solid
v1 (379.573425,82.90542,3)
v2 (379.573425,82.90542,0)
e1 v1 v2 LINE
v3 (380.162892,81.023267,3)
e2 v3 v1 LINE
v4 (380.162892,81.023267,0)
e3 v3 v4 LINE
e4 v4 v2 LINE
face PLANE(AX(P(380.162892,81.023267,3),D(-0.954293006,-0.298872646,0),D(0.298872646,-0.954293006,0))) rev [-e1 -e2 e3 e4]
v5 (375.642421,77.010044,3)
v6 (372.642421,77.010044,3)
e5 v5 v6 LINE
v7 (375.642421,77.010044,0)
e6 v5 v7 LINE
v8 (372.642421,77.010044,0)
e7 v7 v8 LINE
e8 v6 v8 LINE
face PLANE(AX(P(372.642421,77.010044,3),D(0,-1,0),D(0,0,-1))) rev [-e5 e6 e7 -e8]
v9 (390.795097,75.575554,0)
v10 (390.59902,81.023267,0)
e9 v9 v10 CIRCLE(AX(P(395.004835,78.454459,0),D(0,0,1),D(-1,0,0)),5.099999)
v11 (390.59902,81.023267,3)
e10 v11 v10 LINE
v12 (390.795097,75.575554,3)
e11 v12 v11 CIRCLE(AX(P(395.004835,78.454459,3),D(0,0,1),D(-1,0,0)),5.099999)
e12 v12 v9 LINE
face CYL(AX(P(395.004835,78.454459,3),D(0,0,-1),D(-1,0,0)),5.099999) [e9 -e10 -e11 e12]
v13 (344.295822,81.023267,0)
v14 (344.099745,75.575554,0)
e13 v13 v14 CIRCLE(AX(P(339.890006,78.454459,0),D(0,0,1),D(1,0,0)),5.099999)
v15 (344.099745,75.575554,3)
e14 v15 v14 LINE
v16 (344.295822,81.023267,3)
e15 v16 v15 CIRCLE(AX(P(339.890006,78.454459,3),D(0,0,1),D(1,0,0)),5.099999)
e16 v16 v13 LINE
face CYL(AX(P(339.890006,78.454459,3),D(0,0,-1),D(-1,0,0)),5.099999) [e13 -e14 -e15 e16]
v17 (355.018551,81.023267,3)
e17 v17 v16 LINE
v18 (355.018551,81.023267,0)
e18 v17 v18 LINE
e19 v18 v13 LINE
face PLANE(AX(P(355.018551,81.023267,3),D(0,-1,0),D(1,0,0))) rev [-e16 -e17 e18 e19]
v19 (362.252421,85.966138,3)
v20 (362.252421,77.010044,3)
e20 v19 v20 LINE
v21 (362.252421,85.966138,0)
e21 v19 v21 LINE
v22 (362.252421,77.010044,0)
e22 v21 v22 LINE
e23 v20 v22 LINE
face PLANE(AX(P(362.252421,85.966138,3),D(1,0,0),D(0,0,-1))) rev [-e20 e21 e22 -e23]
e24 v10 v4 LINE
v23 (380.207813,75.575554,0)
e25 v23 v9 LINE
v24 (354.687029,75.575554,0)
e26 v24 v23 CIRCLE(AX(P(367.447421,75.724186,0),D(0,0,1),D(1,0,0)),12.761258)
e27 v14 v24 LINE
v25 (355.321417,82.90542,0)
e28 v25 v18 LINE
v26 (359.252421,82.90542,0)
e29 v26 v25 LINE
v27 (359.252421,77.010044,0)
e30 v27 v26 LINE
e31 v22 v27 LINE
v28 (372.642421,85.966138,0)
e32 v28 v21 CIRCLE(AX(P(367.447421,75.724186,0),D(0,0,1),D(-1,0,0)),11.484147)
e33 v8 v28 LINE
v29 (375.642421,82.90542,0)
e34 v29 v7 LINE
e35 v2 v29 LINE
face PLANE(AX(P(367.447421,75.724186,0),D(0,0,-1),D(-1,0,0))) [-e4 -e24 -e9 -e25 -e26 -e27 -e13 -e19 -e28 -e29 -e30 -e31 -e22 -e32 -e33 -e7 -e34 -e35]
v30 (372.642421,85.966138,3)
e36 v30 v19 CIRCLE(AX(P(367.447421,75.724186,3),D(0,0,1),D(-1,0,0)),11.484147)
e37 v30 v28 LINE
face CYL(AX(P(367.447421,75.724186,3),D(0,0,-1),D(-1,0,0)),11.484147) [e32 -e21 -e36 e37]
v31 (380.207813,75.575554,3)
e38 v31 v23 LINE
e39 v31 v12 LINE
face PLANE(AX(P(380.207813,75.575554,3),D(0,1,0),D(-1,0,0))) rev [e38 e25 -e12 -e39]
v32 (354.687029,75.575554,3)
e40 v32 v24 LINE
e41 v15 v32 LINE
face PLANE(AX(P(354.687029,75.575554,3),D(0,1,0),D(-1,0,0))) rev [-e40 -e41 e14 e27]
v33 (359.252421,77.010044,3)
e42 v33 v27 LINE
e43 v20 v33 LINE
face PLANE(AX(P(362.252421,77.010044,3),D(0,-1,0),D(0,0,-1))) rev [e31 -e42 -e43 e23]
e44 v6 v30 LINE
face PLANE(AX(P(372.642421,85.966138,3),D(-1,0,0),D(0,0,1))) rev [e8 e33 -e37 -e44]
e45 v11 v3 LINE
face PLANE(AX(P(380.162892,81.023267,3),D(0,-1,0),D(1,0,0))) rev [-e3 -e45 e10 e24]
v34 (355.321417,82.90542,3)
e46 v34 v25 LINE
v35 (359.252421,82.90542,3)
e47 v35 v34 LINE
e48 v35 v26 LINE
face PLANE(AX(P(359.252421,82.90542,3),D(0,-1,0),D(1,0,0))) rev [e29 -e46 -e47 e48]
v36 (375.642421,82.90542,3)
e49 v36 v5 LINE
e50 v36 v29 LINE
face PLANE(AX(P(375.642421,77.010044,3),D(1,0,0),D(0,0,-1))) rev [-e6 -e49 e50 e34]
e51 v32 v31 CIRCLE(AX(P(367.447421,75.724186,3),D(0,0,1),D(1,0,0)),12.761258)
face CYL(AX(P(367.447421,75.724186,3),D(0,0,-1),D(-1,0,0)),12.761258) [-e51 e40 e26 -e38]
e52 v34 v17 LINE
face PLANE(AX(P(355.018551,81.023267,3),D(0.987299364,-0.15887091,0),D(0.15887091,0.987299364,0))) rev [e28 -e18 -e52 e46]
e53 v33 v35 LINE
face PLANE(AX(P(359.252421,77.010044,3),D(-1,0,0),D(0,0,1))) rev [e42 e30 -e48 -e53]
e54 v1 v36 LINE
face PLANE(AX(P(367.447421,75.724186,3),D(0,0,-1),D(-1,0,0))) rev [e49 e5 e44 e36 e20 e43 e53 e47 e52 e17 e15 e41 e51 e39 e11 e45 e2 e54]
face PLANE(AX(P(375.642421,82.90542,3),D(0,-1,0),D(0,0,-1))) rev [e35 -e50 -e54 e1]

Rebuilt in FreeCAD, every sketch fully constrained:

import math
import FreeCAD as App
import Part
import Sketcher
Q = App.Units.Quantity

doc = App.newDocument("Part")
params = doc.addObject("Spreadsheet::Sheet", "Params")
for row, (alias, value) in enumerate([
    ("sketch1_radius", "5.099999 mm"),
    ("sketch1_width", "3 mm"),
    ("pad1_length", "3 mm"),
], start=1):
    params.set(f"A{row}", alias)
    params.set(f"B{row}", "=" + value)
    params.setAlias(f"B{row}", alias)

body = doc.addObject("PartDesign::Body", "Body")

# Sketch on XY plane
sketch1 = doc.addObject("Sketcher::SketchObject", "Sketch")
body.addObject(sketch1)
sketch1.AttachmentSupport = (doc.XY_Plane, [""])
sketch1.MapMode = "FlatFace"
sketch1.addGeometry([
    Part.LineSegment(App.Vector(390.59902, 81.023267, 0), App.Vector(380.162892, 81.023267, 0)),  # 0
    Part.LineSegment(App.Vector(380.162892, 81.023267, 0), App.Vector(379.573425, 82.90542, 0)),  # 1
    Part.LineSegment(App.Vector(379.573425, 82.90542, 0), App.Vector(375.642421, 82.90542, 0)),  # 2
    Part.LineSegment(App.Vector(375.642421, 82.90542, 0), App.Vector(375.642421, 77.010044, 0)),  # 3
    Part.LineSegment(App.Vector(375.642421, 77.010044, 0), App.Vector(372.642421, 77.010044, 0)),  # 4
    Part.LineSegment(App.Vector(372.642421, 77.010044, 0), App.Vector(372.642421, 85.966138, 0)),  # 5
    Part.ArcOfCircle(Part.Circle(App.Vector(367.447421, 75.724186, 0), App.Vector(0, 0, 1), 11.484147), math.radians(63.104624), math.radians(116.895376)),  # 6
    Part.LineSegment(App.Vector(362.252421, 85.966138, 0), App.Vector(362.252421, 77.010044, 0)),  # 7
    Part.LineSegment(App.Vector(362.252421, 77.010044, 0), App.Vector(359.252421, 77.010044, 0)),  # 8
    Part.LineSegment(App.Vector(359.252421, 77.010044, 0), App.Vector(359.252421, 82.90542, 0)),  # 9
    Part.LineSegment(App.Vector(359.252421, 82.90542, 0), App.Vector(355.321417, 82.90542, 0)),  # 10
    Part.LineSegment(App.Vector(355.321417, 82.90542, 0), App.Vector(355.018551, 81.023267, 0)),  # 11
    Part.LineSegment(App.Vector(355.018551, 81.023267, 0), App.Vector(344.295822, 81.023267, 0)),  # 12
    Part.ArcOfCircle(Part.Circle(App.Vector(339.890006, 78.454459, 0), App.Vector(0, 0, 1), 5.099999), math.radians(30.244306), math.radians(325.633036)),  # 13
    Part.LineSegment(App.Vector(344.099745, 75.575554, 0), App.Vector(354.687029, 75.575554, 0)),  # 14
    Part.ArcOfCircle(Part.Circle(App.Vector(367.447421, 75.724186, 0), App.Vector(0, 0, 1), 12.761258), math.radians(-179.332656), math.radians(-0.667344)),  # 15
    Part.LineSegment(App.Vector(380.207813, 75.575554, 0), App.Vector(390.795097, 75.575554, 0)),  # 16
    Part.ArcOfCircle(Part.Circle(App.Vector(395.004835, 78.454459, 0), App.Vector(0, 0, 1), 5.099999), math.radians(-145.633036), math.radians(149.755694)),  # 17
], False)
sketch1.addConstraint([
    Sketcher.Constraint("Coincident", 0, 2, 1, 1),
    Sketcher.Constraint("Coincident", 1, 2, 2, 1),
    Sketcher.Constraint("Coincident", 2, 2, 3, 1),
    Sketcher.Constraint("Coincident", 3, 2, 4, 1),
    Sketcher.Constraint("Coincident", 4, 2, 5, 1),
    Sketcher.Constraint("Coincident", 5, 2, 6, 1),
    Sketcher.Constraint("Coincident", 6, 2, 7, 1),
    Sketcher.Constraint("Coincident", 7, 2, 8, 1),
    Sketcher.Constraint("Coincident", 8, 2, 9, 1),
    Sketcher.Constraint("Coincident", 9, 2, 10, 1),
    Sketcher.Constraint("Coincident", 10, 2, 11, 1),
    Sketcher.Constraint("Coincident", 11, 2, 12, 1),
    Sketcher.Constraint("Coincident", 12, 2, 13, 1),
    Sketcher.Constraint("Coincident", 13, 2, 14, 1),
    Sketcher.Constraint("Coincident", 14, 2, 15, 1),
    Sketcher.Constraint("Coincident", 15, 2, 16, 1),
    Sketcher.Constraint("Coincident", 16, 2, 17, 1),
    Sketcher.Constraint("Coincident", 17, 2, 0, 1),
    Sketcher.Constraint("Horizontal", 0),
    Sketcher.Constraint("Horizontal", 2),
    Sketcher.Constraint("Vertical", 3),
    Sketcher.Constraint("Horizontal", 4),
    Sketcher.Constraint("Vertical", 5),
    Sketcher.Constraint("Vertical", 7),
    Sketcher.Constraint("Horizontal", 8),
    Sketcher.Constraint("Vertical", 9),
    Sketcher.Constraint("Horizontal", 10),
    Sketcher.Constraint("Horizontal", 12),
    Sketcher.Constraint("Horizontal", 14),
    Sketcher.Constraint("Horizontal", 16),
    Sketcher.Constraint("Coincident", 15, 3, 6, 3),
    Sketcher.Constraint("Equal", 13, 17),
    Sketcher.Constraint("Horizontal", 13, 3, 17, 3),
    Sketcher.Constraint("Horizontal", 5, 2, 6, 2),
    Sketcher.Constraint("Horizontal", 4, 2, 7, 2),
    Sketcher.Constraint("Horizontal", 2, 2, 9, 2),
    Sketcher.Constraint("Horizontal", 0, 2, 11, 2),
    Sketcher.Constraint("Horizontal", 14, 2, 15, 2),
    Sketcher.Constraint("Equal", 4, 8),
    Sketcher.Constraint("Equal", 2, 10),
    Sketcher.Constraint("Equal", 14, 16),
    Sketcher.Constraint("Radius", 13, Q("5.099999 mm")),
    Sketcher.Constraint("DistanceX", 4, 2, 4, 1, Q("3 mm")),
    Sketcher.Constraint("DistanceX", 6, 2, 5, 2, Q("10.39 mm")),
    Sketcher.Constraint("Radius", 6, Q("11.484147 mm")),
    Sketcher.Constraint("Radius", 15, Q("12.761258 mm")),
    Sketcher.Constraint("Distance", 1, Q("1.9723 mm")),
    Sketcher.Constraint("DistanceX", 0, 2, 0, 1, Q("10.436128 mm")),
    Sketcher.Constraint("DistanceX", 12, 2, 12, 1, Q("10.722729 mm")),
    Sketcher.Constraint("DistanceX", 12, 2, 9, 2, Q("14.956599 mm")),
    Sketcher.Constraint("DistanceX", 2, 2, 2, 1, Q("3.931004 mm")),
    Sketcher.Constraint("DistanceX", 14, 1, 14, 2, Q("10.587284 mm")),
    Sketcher.Constraint("DistanceY", 3, 2, 3, 1, Q("5.895376 mm")),
    Sketcher.Constraint("DistanceY", 5, 1, 5, 2, Q("8.956094 mm")),
    Sketcher.Constraint("DistanceX", -1, 1, 6, 3, Q("367.447421 mm")),
    Sketcher.Constraint("DistanceY", -1, 1, 13, 3, Q("78.454459 mm")),
    Sketcher.Constraint("DistanceY", -1, 1, 1, 2, Q("82.90542 mm")),
])
sketch1.setExpression("Constraints[41]", "Params.sketch1_radius")
sketch1.setExpression("Constraints[42]", "Params.sketch1_width")
pad1 = doc.addObject("PartDesign::Pad", "Pad")
body.addObject(pad1)
pad1.Profile = sketch1
pad1.setExpression("Length", "Params.pad1_length")

doc.recompute()
